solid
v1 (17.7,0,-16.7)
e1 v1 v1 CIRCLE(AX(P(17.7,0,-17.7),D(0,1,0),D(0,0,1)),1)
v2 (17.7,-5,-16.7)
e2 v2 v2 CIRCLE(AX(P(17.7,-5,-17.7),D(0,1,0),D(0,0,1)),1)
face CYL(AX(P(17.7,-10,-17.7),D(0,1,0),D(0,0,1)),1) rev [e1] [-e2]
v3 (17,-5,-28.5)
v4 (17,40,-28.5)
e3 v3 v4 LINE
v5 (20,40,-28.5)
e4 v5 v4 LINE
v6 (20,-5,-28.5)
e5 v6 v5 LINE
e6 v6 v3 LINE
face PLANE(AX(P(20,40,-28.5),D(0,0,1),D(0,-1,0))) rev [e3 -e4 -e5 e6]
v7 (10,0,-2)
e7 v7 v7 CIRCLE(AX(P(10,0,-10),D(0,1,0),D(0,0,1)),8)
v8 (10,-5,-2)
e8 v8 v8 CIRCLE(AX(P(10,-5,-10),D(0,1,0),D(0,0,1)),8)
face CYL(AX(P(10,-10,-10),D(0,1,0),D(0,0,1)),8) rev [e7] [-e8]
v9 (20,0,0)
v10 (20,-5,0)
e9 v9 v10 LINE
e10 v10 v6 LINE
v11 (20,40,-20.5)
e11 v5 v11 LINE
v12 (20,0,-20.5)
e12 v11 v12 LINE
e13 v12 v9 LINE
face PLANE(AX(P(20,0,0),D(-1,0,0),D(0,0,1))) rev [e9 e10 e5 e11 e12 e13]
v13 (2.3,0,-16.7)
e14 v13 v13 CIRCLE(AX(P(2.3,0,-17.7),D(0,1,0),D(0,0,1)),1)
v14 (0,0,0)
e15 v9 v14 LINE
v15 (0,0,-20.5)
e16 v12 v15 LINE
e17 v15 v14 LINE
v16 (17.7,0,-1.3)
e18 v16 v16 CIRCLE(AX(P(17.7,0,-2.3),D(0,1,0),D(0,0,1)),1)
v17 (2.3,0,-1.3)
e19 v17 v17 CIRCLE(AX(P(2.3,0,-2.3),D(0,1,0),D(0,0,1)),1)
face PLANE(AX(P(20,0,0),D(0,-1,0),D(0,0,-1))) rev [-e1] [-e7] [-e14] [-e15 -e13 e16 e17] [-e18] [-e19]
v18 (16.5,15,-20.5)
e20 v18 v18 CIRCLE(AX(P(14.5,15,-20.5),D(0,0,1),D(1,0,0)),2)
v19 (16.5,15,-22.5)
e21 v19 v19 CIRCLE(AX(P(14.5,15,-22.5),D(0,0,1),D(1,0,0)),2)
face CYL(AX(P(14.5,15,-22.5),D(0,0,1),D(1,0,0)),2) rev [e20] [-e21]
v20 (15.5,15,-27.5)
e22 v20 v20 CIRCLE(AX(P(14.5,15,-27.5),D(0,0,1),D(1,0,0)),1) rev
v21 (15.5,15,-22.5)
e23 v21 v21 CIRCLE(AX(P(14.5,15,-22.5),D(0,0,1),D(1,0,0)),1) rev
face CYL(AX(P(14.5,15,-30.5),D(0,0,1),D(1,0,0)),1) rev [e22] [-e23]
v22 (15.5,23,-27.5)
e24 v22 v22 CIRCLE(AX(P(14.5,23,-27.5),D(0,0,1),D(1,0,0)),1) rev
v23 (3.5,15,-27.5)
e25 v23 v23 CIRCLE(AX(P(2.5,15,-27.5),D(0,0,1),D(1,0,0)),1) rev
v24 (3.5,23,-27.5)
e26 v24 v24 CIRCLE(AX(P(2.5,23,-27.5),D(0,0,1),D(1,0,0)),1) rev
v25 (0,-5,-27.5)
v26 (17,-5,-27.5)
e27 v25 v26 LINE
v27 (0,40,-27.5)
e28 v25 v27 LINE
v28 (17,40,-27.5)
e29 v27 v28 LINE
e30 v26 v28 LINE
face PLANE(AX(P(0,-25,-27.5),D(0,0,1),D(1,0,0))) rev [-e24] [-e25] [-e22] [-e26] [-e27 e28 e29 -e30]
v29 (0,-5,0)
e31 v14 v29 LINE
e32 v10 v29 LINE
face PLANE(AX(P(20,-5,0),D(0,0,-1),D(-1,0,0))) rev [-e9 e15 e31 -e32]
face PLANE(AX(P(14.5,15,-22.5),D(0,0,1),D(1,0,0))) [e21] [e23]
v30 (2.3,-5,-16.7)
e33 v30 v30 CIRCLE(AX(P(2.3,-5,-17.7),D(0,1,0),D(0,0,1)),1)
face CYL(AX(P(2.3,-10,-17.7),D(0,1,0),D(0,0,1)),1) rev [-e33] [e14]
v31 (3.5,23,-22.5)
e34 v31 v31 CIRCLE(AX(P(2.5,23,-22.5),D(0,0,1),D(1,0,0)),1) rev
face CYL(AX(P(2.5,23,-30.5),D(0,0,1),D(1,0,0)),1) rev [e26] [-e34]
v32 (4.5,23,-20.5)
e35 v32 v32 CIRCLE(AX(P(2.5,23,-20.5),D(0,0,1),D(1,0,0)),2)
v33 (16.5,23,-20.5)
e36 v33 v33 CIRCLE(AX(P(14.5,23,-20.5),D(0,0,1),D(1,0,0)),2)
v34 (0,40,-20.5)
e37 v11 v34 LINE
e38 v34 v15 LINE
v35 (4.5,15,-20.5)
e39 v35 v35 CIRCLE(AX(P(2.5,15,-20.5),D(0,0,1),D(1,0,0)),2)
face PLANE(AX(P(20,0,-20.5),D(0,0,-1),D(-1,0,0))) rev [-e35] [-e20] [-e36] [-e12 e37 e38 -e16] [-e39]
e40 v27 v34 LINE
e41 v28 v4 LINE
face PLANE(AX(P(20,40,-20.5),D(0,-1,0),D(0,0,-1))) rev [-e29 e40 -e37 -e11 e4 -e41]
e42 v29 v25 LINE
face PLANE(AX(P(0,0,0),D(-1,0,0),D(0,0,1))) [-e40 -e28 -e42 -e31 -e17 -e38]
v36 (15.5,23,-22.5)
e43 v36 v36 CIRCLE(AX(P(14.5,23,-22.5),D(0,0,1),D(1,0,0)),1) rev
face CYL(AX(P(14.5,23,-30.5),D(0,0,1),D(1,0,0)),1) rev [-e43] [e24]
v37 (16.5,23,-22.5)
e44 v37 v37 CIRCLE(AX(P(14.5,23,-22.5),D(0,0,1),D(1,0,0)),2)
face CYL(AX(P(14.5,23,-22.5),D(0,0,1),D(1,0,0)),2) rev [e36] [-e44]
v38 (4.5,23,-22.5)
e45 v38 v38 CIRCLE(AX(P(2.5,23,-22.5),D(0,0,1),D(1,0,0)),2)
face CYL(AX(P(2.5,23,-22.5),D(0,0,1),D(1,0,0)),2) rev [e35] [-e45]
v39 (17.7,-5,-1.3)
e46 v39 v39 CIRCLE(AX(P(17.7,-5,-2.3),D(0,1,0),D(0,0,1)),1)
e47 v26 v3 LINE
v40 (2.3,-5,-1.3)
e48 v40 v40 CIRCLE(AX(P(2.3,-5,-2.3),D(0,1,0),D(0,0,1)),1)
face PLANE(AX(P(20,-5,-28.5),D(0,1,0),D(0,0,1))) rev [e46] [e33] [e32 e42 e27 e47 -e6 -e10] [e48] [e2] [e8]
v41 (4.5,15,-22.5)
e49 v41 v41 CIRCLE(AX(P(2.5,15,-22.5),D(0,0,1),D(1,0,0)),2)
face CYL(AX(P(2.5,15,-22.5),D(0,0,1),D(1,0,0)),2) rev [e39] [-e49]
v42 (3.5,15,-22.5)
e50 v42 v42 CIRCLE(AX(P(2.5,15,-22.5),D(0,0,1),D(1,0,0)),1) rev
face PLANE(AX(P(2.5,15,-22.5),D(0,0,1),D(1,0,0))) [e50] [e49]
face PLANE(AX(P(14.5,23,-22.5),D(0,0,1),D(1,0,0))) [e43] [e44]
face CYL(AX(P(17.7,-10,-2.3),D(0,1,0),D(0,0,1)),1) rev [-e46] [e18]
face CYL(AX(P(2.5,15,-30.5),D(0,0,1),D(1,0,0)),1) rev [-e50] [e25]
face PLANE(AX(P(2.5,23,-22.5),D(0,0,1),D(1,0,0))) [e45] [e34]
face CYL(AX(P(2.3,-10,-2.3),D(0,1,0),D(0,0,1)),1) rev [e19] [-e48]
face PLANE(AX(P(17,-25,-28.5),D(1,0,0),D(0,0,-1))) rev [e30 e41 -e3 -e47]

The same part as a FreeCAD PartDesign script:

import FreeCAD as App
import Part
import Sketcher

doc = App.newDocument("Part")
body = doc.addObject("PartDesign::Body", "Body")

sketch1 = body.newObject("Sketcher::SketchObject", "Sketch")
sketch1.AttachmentSupport = (doc.getObject("YZ_Plane"), [""])
sketch1.MapMode = "FlatFace"
sketch1.addGeometry(Part.LineSegment(App.Vector(0, -20, 0), App.Vector(0, 0, 0)), False)
sketch1.addGeometry(Part.LineSegment(App.Vector(0, 0, 0), App.Vector(-5, 0, 0)), False)
sketch1.addGeometry(Part.LineSegment(App.Vector(-5, 0, 0), App.Vector(-5, -28, 0)), False)
sketch1.addGeometry(Part.LineSegment(App.Vector(-5, -28, 0), App.Vector(40, -28, 0)), False)
sketch1.addGeometry(Part.LineSegment(App.Vector(40, -28, 0), App.Vector(40, -20, 0)), False)
sketch1.addGeometry(Part.LineSegment(App.Vector(40, -20, 0), App.Vector(0, -20, 0)), False)
sketch1.addConstraint(Sketcher.Constraint("Coincident", 0, 2, 1, 1))
sketch1.addConstraint(Sketcher.Constraint("Coincident", 1, 2, 2, 1))
sketch1.addConstraint(Sketcher.Constraint("Coincident", 2, 2, 3, 1))
sketch1.addConstraint(Sketcher.Constraint("Coincident", 3, 2, 4, 1))
sketch1.addConstraint(Sketcher.Constraint("Coincident", 4, 2, 5, 1))
sketch1.addConstraint(Sketcher.Constraint("Coincident", 5, 2, 0, 1))
sketch1.addConstraint(Sketcher.Constraint("Vertical", 0))
sketch1.addConstraint(Sketcher.Constraint("Horizontal", 1))
sketch1.addConstraint(Sketcher.Constraint("Vertical", 2))
sketch1.addConstraint(Sketcher.Constraint("Horizontal", 3))
sketch1.addConstraint(Sketcher.Constraint("Vertical", 4))
sketch1.addConstraint(Sketcher.Constraint("Horizontal", 5))
sketch1.addConstraint(Sketcher.Constraint("Coincident", 0, 2, -1, 1))
sketch1.addConstraint(Sketcher.Constraint("DistanceX", 1, 2, 1, 1, 5.0))
sketch1.addConstraint(Sketcher.Constraint("DistanceX", 3, 1, 3, 2, 45.0))
sketch1.addConstraint(Sketcher.Constraint("DistanceY", 4, 1, 4, 2, 8.0))
sketch1.addConstraint(Sketcher.Constraint("DistanceY", 0, 1, 0, 2, 20.5))
pad1 = body.newObject("PartDesign::Pad", "Pad")
pad1.Profile = sketch1
pad1.Length = 20

sketch2 = body.newObject("Sketcher::SketchObject", "Sketch001")
sketch2.AttachmentSupport = (doc.getObject("XZ_Plane"), [""])
sketch2.MapMode = "FlatFace"
sketch2.addGeometry(Part.Circle(App.Vector(10, -10, 0), App.Vector(0, 0, 1), 8), False)
sketch2.addGeometry(Part.Circle(App.Vector(2.3, -17.7, 0), App.Vector(0, 0, 1), 1), False)
sketch2.addGeometry(Part.Circle(App.Vector(17.7, -17.7, 0), App.Vector(0, 0, 1), 1), False)
sketch2.addGeometry(Part.Circle(App.Vector(17.7, -2.3, 0), App.Vector(0, 0, 1), 1), False)
sketch2.addGeometry(Part.Circle(App.Vector(2.3, -2.3, 0), App.Vector(0, 0, 1), 1), False)
sketch2.addConstraint(Sketcher.Constraint("Equal", 1, 2))
sketch2.addConstraint(Sketcher.Constraint("Equal", 2, 3))
sketch2.addConstraint(Sketcher.Constraint("Equal", 3, 4))
sketch2.addConstraint(Sketcher.Constraint("Horizontal", 1, 3, 2, 3))
sketch2.addConstraint(Sketcher.Constraint("Horizontal", 3, 3, 4, 3))
sketch2.addConstraint(Sketcher.Constraint("Vertical", 2, 3, 3, 3))
sketch2.addConstraint(Sketcher.Constraint("Vertical", 1, 3, 4, 3))
sketch2.addConstraint(Sketcher.Constraint("Diameter", 0, 16.0))
sketch2.addConstraint(Sketcher.Constraint("Diameter", 1, 2.0))
sketch2.addConstraint(Sketcher.Constraint("DistanceX", -1, 1, 0, 3, 10.0))
sketch2.addConstraint(Sketcher.Constraint("DistanceY", 0, 3, -1, 1, 10.0))
sketch2.addConstraint(Sketcher.Constraint("DistanceX", -1, 1, 1, 3, 2.3))
sketch2.addConstraint(Sketcher.Constraint("DistanceY", 1, 3, -1, 1, 17.7))
sketch2.addConstraint(Sketcher.Constraint("DistanceX", -1, 1, 2, 3, 17.7))
sketch2.addConstraint(Sketcher.Constraint("DistanceY", 3, 3, -1, 1, 2.3))
pocket1 = body.newObject("PartDesign::Pocket", "Pocket")
pocket1.Profile = sketch2
pocket1.Length = 10
pocket1.Reversed = True

sketch3 = body.newObject("Sketcher::SketchObject", "Sketch002")
sketch3.AttachmentSupport = (doc.getObject("XY_Plane"), [""])
sketch3.MapMode = "FlatFace"
sketch3.AttachmentOffset = App.Placement(App.Vector(0, 0, -20.5), App.Rotation())
sketch3.addGeometry(Part.Circle(App.Vector(2.5, 15, 0), App.Vector(0, 0, 1), 1), False)
sketch3.addGeometry(Part.Circle(App.Vector(2.5, 23, 0), App.Vector(0, 0, 1), 1), False)
sketch3.addGeometry(Part.Circle(App.Vector(14.5, 23, 0), App.Vector(0, 0, 1), 1), False)
sketch3.addGeometry(Part.Circle(App.Vector(14.5, 15, 0), App.Vector(0, 0, 1), 1), False)
sketch3.addConstraint(Sketcher.Constraint("Equal", 0, 1))
sketch3.addConstraint(Sketcher.Constraint("Equal", 1, 2))
sketch3.addConstraint(Sketcher.Constraint("Equal", 2, 3))
sketch3.addConstraint(Sketcher.Constraint("Horizontal", 1, 3, 2, 3))
sketch3.addConstraint(Sketcher.Constraint("Horizontal", 0, 3, 3, 3))
sketch3.addConstraint(Sketcher.Constraint("Vertical", 0, 3, 1, 3))
sketch3.addConstraint(Sketcher.Constraint("Vertical", 2, 3, 3, 3))
sketch3.addConstraint(Sketcher.Constraint("Diameter", 0, 2.0))
sketch3.addConstraint(Sketcher.Constraint("DistanceY", -1, 1, 0, 3, 15.0))
sketch3.addConstraint(Sketcher.Constraint("DistanceY", -1, 1, 1, 3, 23.0))
sketch3.addConstraint(Sketcher.Constraint("DistanceX", 1, 3, 2, 3, 12.0))
sketch3.addConstraint(Sketcher.Constraint("DistanceX", -1, 1, 0, 3, 2.5))
pocket2 = body.newObject("PartDesign::Pocket", "Pocket001")
pocket2.Profile = sketch3
pocket2.Length = 10

sketch4 = body.newObject("Sketcher::SketchObject", "Sketch003")
sketch4.AttachmentSupport = (doc.getObject("XY_Plane"), [""])
sketch4.MapMode = "FlatFace"
sketch4.AttachmentOffset = App.Placement(App.Vector(0, 0, -20.5), App.Rotation())
sketch4.addGeometry(Part.Circle(App.Vector(2.5, 23, 0), App.Vector(0, 0, 1), 2), False)
sketch4.addGeometry(Part.Circle(App.Vector(2.5, 15, 0), App.Vector(0, 0, 1), 2), False)
sketch4.addGeometry(Part.Circle(App.Vector(14.5, 15, 0), App.Vector(0, 0, 1), 2), False)
sketch4.addGeometry(Part.Circle(App.Vector(14.5, 23, 0), App.Vector(0, 0, 1), 2), False)
sketch4.addConstraint(Sketcher.Constraint("Equal", 0, 1))
sketch4.addConstraint(Sketcher.Constraint("Equal", 1, 2))
sketch4.addConstraint(Sketcher.Constraint("Equal", 2, 3))
sketch4.addConstraint(Sketcher.Constraint("Horizontal", 1, 3, 2, 3))
sketch4.addConstraint(Sketcher.Constraint("Horizontal", 0, 3, 3, 3))
sketch4.addConstraint(Sketcher.Constraint("Vertical", 0, 3, 1, 3))
sketch4.addConstraint(Sketcher.Constraint("Vertical", 2, 3, 3, 3))
sketch4.addConstraint(Sketcher.Constraint("Diameter", 0, 4.0))
sketch4.addConstraint(Sketcher.Constraint("DistanceY", -1, 1, 0, 3, 23.0))
sketch4.addConstraint(Sketcher.Constraint("DistanceY", -1, 1, 1, 3, 15.0))
sketch4.addConstraint(Sketcher.Constraint("DistanceX", 1, 3, 2, 3, 12.0))
sketch4.addConstraint(Sketcher.Constraint("DistanceX", -1, 1, 0, 3, 2.5))
pocket3 = body.newObject("PartDesign::Pocket", "Pocket002")
pocket3.Profile = sketch4
pocket3.Length = 2

sketch5 = body.newObject("Sketcher::SketchObject", "Sketch004")
sketch5.AttachmentSupport = (doc.getObject("XZ_Plane"), [""])
sketch5.MapMode = "FlatFace"
sketch5.AttachmentOffset = App.Placement(App.Vector(0, 0, -40), App.Rotation())
sketch5.addGeometry(Part.LineSegment(App.Vector(0, -28.5, 0), App.Vector(0, -27.5, 0)), False)
sketch5.addGeometry(Part.LineSegment(App.Vector(0, -27.5, 0), App.Vector(17, -27.5, 0)), False)
sketch5.addGeometry(Part.LineSegment(App.Vector(17, -27.5, 0), App.Vector(17, -28.5, 0)), False)
sketch5.addGeometry(Part.LineSegment(App.Vector(17, -28.5, 0), App.Vector(0, -28.5, 0)), False)
sketch5.addConstraint(Sketcher.Constraint("Coincident", 0, 2, 1, 1))
sketch5.addConstraint(Sketcher.Constraint("Coincident", 1, 2, 2, 1))
sketch5.addConstraint(Sketcher.Constraint("Coincident", 2, 2, 3, 1))
sketch5.addConstraint(Sketcher.Constraint("Coincident", 3, 2, 0, 1))
sketch5.addConstraint(Sketcher.Constraint("Vertical", 0))
sketch5.addConstraint(Sketcher.Constraint("Horizontal", 1))
sketch5.addConstraint(Sketcher.Constraint("Vertical", 2))
sketch5.addConstraint(Sketcher.Constraint("Horizontal", 3))
sketch5.addConstraint(Sketcher.Constraint("PointOnObject", 0, 2, -2))
sketch5.addConstraint(Sketcher.Constraint("DistanceX", 1, 1, 1, 2, 17.0))
sketch5.addConstraint(Sketcher.Constraint("DistanceY", 0, 1, 0, 2, 1.0))
sketch5.addConstraint(Sketcher.Constraint("DistanceY", 0, 2, -1, 1, 27.5))
pocket4 = body.newObject("PartDesign::Pocket", "Pocket003")
pocket4.Profile = sketch5
pocket4.Length = 65
pocket4.Reversed = True

doc.recompute()
